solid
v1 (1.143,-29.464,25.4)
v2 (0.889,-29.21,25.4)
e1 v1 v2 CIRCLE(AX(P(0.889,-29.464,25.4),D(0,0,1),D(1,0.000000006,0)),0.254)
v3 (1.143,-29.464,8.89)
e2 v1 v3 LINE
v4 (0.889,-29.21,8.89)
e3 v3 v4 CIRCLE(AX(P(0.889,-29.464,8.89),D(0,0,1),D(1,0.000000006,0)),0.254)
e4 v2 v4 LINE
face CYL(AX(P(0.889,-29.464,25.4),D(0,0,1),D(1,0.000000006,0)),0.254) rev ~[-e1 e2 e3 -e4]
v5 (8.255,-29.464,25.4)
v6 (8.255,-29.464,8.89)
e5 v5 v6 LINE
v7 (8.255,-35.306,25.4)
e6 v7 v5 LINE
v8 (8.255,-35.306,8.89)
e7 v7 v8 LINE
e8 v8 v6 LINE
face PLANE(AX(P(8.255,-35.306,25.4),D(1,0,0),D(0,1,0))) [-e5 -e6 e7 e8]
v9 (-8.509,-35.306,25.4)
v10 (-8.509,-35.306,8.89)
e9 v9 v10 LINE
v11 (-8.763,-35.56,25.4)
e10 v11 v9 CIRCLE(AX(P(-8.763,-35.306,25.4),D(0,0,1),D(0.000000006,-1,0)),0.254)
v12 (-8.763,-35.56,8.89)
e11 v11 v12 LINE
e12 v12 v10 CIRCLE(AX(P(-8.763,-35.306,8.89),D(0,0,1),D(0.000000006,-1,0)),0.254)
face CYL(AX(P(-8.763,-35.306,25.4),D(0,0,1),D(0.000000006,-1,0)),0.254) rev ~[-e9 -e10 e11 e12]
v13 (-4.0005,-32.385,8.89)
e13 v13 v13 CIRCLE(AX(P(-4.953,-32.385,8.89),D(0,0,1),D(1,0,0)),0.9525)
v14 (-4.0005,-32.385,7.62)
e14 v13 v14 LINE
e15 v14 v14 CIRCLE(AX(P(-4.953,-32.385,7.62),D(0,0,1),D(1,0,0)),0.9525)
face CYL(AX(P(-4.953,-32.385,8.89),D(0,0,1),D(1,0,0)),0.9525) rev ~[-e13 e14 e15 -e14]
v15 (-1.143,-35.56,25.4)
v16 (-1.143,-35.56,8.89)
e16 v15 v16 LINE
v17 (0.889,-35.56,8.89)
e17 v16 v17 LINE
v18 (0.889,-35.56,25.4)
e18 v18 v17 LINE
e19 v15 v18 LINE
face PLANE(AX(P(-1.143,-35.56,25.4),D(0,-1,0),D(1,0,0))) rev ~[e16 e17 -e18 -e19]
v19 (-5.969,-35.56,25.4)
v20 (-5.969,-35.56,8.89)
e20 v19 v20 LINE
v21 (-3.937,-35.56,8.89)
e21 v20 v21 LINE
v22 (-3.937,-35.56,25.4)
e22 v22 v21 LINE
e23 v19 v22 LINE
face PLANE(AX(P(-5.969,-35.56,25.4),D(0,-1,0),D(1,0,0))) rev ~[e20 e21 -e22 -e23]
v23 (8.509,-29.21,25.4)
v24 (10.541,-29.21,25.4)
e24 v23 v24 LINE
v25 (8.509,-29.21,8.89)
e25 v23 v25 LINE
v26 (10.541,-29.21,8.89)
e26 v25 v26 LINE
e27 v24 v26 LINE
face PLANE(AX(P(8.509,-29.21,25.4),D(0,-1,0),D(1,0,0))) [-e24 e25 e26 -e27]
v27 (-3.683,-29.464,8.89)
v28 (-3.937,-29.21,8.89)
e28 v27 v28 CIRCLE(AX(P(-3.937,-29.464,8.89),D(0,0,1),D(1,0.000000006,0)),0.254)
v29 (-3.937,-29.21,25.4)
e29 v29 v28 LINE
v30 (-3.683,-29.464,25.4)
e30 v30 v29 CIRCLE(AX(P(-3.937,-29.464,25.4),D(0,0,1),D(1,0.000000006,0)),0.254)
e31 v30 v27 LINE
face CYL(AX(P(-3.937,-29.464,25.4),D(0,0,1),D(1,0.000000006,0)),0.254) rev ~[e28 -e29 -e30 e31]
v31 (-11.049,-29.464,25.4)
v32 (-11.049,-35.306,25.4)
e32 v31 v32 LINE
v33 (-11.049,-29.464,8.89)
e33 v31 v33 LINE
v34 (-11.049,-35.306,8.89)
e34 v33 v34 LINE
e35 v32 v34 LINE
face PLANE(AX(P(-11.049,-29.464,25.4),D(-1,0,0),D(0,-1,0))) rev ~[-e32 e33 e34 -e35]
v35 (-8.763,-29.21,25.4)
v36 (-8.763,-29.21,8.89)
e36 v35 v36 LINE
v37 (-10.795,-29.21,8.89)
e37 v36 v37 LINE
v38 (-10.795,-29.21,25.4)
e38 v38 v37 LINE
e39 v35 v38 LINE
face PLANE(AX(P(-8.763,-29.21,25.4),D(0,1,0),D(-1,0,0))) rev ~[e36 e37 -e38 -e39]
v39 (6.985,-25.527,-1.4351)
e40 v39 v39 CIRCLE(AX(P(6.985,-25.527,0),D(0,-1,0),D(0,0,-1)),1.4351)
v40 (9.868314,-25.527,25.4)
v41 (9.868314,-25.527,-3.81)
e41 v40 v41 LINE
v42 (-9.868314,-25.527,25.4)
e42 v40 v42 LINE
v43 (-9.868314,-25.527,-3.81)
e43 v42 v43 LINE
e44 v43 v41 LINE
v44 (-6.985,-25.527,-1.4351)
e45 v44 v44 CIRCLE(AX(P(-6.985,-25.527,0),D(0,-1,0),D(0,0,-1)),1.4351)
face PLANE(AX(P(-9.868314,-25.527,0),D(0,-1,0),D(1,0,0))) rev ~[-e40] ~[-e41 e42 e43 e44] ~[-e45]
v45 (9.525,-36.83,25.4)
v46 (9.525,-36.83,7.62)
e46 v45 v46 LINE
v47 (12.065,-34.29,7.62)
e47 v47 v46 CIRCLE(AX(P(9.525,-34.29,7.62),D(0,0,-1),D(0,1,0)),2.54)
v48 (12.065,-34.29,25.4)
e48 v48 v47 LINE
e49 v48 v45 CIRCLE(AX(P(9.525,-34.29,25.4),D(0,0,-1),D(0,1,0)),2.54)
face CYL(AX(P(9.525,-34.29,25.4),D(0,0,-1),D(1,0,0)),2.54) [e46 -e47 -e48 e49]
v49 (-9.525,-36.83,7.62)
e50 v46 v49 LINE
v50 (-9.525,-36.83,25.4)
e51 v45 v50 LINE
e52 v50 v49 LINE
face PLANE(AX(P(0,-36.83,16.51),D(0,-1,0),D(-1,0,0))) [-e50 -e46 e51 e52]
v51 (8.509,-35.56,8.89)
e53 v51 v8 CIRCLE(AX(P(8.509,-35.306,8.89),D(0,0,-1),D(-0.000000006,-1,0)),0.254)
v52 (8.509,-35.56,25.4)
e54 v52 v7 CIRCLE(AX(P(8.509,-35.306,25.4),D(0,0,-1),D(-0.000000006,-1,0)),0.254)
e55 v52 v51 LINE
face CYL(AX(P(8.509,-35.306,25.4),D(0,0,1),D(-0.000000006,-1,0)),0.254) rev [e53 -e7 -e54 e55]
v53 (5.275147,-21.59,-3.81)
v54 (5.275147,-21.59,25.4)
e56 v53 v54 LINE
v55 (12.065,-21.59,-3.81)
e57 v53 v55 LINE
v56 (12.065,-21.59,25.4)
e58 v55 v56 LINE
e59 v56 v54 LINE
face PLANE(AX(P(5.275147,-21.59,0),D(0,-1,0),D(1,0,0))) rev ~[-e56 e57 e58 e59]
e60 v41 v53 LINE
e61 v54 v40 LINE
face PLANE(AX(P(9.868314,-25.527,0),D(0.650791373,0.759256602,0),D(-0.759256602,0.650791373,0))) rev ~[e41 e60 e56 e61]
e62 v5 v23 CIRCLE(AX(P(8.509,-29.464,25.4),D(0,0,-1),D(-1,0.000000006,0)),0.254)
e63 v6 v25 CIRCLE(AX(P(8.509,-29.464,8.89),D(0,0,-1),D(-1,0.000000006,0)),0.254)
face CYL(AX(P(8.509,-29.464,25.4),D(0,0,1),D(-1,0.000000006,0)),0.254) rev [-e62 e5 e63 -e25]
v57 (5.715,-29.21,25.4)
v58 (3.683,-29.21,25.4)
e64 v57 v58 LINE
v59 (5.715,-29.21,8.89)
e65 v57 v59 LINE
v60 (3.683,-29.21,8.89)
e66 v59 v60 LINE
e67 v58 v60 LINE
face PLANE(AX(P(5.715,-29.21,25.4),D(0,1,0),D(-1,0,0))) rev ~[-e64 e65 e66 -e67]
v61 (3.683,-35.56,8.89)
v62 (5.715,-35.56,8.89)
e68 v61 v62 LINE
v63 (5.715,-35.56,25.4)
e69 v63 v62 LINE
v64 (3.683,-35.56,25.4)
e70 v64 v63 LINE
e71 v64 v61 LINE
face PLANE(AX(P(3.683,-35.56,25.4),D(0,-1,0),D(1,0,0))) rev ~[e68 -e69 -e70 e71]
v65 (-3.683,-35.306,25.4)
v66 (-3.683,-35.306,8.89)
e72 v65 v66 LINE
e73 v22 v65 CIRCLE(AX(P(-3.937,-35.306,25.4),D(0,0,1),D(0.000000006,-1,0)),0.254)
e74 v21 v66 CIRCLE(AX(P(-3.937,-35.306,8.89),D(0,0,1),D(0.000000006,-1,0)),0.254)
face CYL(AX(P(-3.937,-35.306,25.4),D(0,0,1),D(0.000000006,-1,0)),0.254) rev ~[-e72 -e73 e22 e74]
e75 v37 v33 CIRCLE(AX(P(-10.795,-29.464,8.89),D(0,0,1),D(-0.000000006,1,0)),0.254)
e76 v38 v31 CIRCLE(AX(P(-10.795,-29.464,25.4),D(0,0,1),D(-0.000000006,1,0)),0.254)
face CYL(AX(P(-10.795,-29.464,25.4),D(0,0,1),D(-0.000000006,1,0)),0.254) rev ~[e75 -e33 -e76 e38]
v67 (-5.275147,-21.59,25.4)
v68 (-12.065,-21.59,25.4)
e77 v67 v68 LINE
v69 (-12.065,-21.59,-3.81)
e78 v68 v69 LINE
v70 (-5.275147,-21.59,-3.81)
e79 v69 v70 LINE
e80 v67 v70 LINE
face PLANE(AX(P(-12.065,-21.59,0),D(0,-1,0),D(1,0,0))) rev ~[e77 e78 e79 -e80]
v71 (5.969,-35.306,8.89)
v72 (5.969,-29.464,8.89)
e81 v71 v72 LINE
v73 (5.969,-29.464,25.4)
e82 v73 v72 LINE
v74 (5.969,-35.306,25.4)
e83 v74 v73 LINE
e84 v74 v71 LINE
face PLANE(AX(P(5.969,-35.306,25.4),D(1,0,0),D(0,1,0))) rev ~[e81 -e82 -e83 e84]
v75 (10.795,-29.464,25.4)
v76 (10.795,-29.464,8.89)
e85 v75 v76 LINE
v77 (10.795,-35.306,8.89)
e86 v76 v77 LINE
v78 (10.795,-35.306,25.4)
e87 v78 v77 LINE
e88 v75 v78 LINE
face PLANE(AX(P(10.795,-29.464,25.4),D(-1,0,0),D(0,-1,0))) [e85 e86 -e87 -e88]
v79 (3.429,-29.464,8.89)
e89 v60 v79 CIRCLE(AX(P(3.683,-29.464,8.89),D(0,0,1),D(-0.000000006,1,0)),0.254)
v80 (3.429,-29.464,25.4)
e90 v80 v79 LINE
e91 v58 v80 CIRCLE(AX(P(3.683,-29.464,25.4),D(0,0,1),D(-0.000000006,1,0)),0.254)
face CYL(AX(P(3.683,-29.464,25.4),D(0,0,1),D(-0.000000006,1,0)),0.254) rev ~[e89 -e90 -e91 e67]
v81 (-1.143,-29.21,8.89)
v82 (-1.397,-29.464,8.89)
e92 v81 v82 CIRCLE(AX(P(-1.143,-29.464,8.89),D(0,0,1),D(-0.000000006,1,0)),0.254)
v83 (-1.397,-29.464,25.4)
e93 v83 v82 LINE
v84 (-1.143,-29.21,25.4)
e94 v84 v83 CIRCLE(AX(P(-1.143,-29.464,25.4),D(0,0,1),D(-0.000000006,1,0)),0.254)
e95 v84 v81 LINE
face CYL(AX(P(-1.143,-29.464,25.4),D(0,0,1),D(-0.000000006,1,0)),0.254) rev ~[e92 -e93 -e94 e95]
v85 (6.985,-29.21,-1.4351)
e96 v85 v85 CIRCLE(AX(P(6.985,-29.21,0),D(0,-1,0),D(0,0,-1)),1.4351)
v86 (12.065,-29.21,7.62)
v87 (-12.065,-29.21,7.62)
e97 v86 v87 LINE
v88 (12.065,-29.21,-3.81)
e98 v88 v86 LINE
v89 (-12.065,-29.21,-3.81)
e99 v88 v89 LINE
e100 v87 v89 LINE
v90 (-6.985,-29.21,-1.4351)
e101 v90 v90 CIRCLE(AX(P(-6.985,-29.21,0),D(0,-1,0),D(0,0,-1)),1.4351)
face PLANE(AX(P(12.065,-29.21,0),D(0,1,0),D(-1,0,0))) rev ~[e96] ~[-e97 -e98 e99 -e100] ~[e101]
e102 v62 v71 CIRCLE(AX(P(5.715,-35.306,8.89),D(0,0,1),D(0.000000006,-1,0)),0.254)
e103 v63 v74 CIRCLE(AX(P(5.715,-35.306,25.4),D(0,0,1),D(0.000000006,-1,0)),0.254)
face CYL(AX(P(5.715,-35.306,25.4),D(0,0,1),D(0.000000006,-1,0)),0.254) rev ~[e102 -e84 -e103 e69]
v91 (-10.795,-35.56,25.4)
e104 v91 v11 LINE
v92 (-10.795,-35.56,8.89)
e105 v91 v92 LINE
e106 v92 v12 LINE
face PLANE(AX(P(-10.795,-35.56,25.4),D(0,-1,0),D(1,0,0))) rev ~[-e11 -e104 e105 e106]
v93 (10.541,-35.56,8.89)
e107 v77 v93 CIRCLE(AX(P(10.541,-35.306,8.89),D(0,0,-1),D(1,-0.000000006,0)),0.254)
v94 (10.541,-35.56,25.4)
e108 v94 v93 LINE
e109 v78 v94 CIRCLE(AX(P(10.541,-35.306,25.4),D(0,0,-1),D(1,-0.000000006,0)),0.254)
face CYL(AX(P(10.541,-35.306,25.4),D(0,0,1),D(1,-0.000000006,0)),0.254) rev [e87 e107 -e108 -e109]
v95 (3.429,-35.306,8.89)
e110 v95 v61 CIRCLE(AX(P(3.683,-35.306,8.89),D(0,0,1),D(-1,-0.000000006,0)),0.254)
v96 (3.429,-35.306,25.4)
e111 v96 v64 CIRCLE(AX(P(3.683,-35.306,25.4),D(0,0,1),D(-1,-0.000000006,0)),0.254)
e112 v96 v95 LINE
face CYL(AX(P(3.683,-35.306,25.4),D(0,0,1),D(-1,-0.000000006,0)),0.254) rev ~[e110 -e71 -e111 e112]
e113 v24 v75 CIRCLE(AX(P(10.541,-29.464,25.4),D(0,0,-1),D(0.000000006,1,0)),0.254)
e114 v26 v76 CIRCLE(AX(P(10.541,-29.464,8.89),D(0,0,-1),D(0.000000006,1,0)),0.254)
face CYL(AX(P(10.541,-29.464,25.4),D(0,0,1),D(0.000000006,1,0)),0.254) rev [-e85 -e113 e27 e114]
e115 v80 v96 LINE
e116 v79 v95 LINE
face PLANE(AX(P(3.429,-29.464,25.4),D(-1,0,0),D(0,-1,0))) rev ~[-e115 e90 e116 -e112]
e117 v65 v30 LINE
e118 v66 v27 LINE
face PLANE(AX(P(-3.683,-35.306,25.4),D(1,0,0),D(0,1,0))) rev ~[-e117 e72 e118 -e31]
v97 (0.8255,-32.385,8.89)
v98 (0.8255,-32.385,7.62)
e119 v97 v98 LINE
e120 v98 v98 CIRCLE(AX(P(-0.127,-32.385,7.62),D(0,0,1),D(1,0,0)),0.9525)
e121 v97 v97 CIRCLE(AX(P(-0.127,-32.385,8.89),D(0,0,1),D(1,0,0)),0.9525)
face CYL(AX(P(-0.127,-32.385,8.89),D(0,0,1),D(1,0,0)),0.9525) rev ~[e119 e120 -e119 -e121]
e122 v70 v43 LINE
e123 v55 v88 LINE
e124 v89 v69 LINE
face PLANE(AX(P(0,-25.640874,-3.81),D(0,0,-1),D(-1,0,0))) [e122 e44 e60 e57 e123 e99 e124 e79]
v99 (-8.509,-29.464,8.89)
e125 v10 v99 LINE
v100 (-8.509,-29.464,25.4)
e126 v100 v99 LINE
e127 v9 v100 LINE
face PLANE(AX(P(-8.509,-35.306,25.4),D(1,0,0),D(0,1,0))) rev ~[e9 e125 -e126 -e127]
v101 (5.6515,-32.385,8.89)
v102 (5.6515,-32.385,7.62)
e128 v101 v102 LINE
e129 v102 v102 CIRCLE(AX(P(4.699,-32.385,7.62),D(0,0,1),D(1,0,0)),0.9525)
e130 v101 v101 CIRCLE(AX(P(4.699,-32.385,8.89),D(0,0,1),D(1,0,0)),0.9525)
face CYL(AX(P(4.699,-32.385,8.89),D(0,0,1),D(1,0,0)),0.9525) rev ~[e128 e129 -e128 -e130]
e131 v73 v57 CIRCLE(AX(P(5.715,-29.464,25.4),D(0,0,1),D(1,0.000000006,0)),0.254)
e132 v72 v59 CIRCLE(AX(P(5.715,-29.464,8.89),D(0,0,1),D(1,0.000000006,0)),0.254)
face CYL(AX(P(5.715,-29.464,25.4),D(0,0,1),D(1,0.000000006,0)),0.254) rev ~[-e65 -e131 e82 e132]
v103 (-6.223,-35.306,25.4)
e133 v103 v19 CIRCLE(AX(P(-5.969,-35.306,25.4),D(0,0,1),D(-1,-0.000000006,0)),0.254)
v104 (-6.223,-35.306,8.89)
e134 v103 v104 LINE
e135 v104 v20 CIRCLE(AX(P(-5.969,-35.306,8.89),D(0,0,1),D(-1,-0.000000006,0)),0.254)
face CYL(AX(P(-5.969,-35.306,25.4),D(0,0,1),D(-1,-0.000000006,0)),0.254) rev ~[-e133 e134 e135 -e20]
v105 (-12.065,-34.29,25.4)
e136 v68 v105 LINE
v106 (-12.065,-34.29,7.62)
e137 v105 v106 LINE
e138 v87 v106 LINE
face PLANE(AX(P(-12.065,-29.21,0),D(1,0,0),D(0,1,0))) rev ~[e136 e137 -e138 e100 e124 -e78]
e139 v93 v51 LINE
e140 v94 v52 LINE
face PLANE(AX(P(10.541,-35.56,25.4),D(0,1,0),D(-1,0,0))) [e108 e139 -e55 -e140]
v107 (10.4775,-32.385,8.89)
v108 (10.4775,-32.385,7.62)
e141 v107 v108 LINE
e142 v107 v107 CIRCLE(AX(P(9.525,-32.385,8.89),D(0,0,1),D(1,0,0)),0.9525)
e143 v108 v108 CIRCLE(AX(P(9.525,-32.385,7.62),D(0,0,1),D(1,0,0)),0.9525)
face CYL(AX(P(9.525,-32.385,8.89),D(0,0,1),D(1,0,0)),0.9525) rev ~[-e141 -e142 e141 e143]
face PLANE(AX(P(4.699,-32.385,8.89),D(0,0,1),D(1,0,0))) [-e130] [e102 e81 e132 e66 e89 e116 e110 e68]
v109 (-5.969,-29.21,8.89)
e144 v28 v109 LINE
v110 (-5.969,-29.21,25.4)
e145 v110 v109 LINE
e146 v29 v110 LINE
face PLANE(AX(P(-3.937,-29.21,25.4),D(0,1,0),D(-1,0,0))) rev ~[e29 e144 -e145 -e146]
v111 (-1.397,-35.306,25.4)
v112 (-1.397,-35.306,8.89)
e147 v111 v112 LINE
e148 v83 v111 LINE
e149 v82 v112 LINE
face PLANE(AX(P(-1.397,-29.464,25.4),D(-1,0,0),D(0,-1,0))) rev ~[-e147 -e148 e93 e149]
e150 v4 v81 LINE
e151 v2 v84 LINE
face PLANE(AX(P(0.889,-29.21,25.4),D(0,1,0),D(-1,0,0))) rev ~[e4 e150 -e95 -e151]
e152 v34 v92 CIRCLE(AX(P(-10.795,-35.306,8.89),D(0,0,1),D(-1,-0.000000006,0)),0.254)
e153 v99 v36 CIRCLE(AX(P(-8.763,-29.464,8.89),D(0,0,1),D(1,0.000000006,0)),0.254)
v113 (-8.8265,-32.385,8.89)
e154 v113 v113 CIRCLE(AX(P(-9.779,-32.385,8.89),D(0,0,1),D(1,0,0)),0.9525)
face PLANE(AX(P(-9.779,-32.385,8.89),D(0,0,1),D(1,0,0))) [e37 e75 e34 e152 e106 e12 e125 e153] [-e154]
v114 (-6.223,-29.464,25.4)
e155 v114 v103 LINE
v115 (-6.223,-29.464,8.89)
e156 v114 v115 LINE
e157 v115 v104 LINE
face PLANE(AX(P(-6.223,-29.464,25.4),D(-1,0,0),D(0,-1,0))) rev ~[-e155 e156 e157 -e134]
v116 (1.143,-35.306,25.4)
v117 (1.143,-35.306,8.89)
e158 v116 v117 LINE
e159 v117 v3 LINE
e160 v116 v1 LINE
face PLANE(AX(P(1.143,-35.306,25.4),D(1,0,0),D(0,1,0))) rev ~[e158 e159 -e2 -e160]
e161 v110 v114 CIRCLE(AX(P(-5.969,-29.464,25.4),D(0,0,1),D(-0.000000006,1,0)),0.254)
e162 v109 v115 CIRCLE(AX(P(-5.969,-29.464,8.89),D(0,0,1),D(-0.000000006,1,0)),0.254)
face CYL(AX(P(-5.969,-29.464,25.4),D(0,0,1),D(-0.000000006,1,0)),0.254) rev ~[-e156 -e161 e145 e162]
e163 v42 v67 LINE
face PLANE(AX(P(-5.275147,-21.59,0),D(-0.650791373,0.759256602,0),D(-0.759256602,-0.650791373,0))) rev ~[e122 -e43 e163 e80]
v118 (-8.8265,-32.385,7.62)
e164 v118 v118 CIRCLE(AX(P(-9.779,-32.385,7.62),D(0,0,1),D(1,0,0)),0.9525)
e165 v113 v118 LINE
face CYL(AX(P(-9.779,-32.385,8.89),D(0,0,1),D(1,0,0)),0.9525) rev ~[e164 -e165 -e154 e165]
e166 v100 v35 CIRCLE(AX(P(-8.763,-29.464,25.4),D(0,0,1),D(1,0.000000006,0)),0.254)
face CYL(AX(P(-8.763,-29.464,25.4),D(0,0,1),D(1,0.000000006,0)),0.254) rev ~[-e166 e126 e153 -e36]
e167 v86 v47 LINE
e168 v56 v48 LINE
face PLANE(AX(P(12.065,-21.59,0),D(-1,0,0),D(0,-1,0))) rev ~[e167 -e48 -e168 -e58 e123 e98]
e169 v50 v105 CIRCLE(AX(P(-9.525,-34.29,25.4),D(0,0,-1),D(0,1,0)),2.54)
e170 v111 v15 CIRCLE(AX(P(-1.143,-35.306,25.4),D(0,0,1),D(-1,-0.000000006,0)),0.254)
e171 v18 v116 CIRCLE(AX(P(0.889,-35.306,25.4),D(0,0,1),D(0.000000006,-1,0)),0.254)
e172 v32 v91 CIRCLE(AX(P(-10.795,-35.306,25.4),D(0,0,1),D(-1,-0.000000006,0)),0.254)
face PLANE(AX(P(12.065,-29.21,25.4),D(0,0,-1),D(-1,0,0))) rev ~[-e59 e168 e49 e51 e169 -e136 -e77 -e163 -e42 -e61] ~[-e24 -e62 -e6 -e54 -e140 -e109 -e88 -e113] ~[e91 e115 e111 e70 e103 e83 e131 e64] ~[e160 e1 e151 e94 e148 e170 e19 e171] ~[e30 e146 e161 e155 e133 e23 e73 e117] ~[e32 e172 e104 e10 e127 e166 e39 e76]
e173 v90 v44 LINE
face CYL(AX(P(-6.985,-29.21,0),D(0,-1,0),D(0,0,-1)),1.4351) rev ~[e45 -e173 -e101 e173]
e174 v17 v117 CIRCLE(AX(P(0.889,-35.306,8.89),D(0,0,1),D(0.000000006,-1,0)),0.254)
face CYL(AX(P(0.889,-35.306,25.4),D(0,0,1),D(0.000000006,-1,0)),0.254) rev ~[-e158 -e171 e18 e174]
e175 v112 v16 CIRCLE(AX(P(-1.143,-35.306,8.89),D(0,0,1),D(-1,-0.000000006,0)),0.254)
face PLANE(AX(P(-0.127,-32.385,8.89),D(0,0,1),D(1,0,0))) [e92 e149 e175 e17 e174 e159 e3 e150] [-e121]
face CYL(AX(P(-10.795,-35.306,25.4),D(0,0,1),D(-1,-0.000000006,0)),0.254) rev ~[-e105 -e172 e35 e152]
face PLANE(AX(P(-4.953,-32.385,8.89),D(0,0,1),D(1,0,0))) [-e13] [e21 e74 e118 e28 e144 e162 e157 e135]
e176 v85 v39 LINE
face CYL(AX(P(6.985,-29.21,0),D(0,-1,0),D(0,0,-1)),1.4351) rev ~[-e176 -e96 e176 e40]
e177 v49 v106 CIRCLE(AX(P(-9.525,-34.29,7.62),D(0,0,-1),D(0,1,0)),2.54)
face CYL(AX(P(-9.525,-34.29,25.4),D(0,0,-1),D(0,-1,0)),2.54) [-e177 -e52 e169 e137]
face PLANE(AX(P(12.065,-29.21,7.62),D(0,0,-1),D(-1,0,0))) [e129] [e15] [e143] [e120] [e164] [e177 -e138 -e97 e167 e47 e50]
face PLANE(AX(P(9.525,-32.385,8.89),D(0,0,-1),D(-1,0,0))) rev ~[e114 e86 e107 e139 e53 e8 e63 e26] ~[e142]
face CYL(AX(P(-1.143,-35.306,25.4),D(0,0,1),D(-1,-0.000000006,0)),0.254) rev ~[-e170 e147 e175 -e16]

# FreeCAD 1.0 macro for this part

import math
import FreeCAD as App
import Part
import Sketcher
Q = App.Units.Quantity


def edges_at(feature, points):
    """Names of the edges that pass closest to the given points."""
    edges = feature.Shape.Edges
    near = lambda p: min(range(len(edges)), key=lambda i: edges[i].distToShape(Part.Vertex(*p))[0])
    return sorted({f"Edge{near(p) + 1}" for p in points})

doc = App.newDocument("Part")
body = doc.addObject("PartDesign::Body", "Body")

# Sketch on XY plane
sketch1 = body.newObject("Sketcher::SketchObject", "Sketch")
sketch1.AttachmentSupport = (doc.getObject("XY_Plane"), [""])
sketch1.MapMode = "FlatFace"
sketch1.addGeometry(Part.LineSegment(App.Vector(5, -22, 0), App.Vector(10, -26, 0)), False)
sketch1.addGeometry(Part.LineSegment(App.Vector(10, -26, 0), App.Vector(-10, -26, 0)), False)
sketch1.addGeometry(Part.LineSegment(App.Vector(-10, -26, 0), App.Vector(-5, -22, 0)), False)
sketch1.addGeometry(Part.LineSegment(App.Vector(-5, -22, 0), App.Vector(-12, -22, 0)), False)
sketch1.addGeometry(Part.LineSegment(App.Vector(-12, -22, 0), App.Vector(-12, -29, 0)), False)
sketch1.addGeometry(Part.LineSegment(App.Vector(-12, -29, 0), App.Vector(12, -29, 0)), False)
sketch1.addGeometry(Part.LineSegment(App.Vector(12, -29, 0), App.Vector(12, -22, 0)), False)
sketch1.addGeometry(Part.LineSegment(App.Vector(12, -22, 0), App.Vector(5, -22, 0)), False)
sketch1.addConstraint(Sketcher.Constraint("Coincident", 0, 2, 1, 1))
sketch1.addConstraint(Sketcher.Constraint("Coincident", 1, 2, 2, 1))
sketch1.addConstraint(Sketcher.Constraint("Coincident", 2, 2, 3, 1))
sketch1.addConstraint(Sketcher.Constraint("Coincident", 3, 2, 4, 1))
sketch1.addConstraint(Sketcher.Constraint("Coincident", 4, 2, 5, 1))
sketch1.addConstraint(Sketcher.Constraint("Coincident", 5, 2, 6, 1))
sketch1.addConstraint(Sketcher.Constraint("Coincident", 6, 2, 7, 1))
sketch1.addConstraint(Sketcher.Constraint("Coincident", 7, 2, 0, 1))
sketch1.addConstraint(Sketcher.Constraint("Horizontal", 1))
sketch1.addConstraint(Sketcher.Constraint("Horizontal", 3))
sketch1.addConstraint(Sketcher.Constraint("Vertical", 4))
sketch1.addConstraint(Sketcher.Constraint("Horizontal", 5))
sketch1.addConstraint(Sketcher.Constraint("Vertical", 6))
sketch1.addConstraint(Sketcher.Constraint("Horizontal", 7))
sketch1.addConstraint(Sketcher.Constraint("Symmetric", 3, 2, 6, 2, -2))
sketch1.addConstraint(Sketcher.Constraint("Equal", 3, 7))
sketch1.addConstraint(Sketcher.Constraint("Equal", 0, 2))
sketch1.addConstraint(Sketcher.Constraint("DistanceY", 4, 2, 4, 1, Q("0.3 in")))
sketch1.addConstraint(Sketcher.Constraint("DistanceX", 5, 1, 5, 2, Q("0.95 in")))
sketch1.addConstraint(Sketcher.Constraint("DistanceY", 2, 2, -1, 1, Q("0.85 in")))
sketch1.addConstraint(Sketcher.Constraint("DistanceY", 0, 2, -1, 1, Q("1.005 in")))
sketch1.addConstraint(Sketcher.Constraint("DistanceX", 1, 2, 1, 1, Q("19.736627 mm")))
sketch1.addConstraint(Sketcher.Constraint("DistanceX", 3, 2, 3, 1, Q("6.789853 mm")))
pad1 = body.newObject("PartDesign::Pad", "Pad")
pad1.Profile = sketch1
pad1.Length = Q("1 in")

# Sketch on XZ plane
sketch2 = body.newObject("Sketcher::SketchObject", "Sketch001")
sketch2.AttachmentSupport = (doc.getObject("XZ_Plane"), [""])
sketch2.MapMode = "FlatFace"
sketch2.AttachmentOffset = App.Placement(App.Vector(0, 0, 1.15 * 25.4), App.Rotation())
sketch2.addGeometry(Part.LineSegment(App.Vector(12, 8, 0), App.Vector(12, 25, 0)), False)
sketch2.addGeometry(Part.LineSegment(App.Vector(12, 25, 0), App.Vector(-12, 25, 0)), False)
sketch2.addGeometry(Part.LineSegment(App.Vector(-12, 25, 0), App.Vector(-12, 8, 0)), False)
sketch2.addGeometry(Part.LineSegment(App.Vector(-12, 8, 0), App.Vector(12, 8, 0)), False)
sketch2.addConstraint(Sketcher.Constraint("Coincident", 0, 2, 1, 1))
sketch2.addConstraint(Sketcher.Constraint("Coincident", 1, 2, 2, 1))
sketch2.addConstraint(Sketcher.Constraint("Coincident", 2, 2, 3, 1))
sketch2.addConstraint(Sketcher.Constraint("Coincident", 3, 2, 0, 1))
sketch2.addConstraint(Sketcher.Constraint("Vertical", 0))
sketch2.addConstraint(Sketcher.Constraint("Horizontal", 1))
sketch2.addConstraint(Sketcher.Constraint("Vertical", 2))
sketch2.addConstraint(Sketcher.Constraint("Horizontal", 3))
sketch2.addConstraint(Sketcher.Constraint("DistanceY", 0, 1, 0, 2, Q("0.7 in")))
sketch2.addConstraint(Sketcher.Constraint("DistanceY", -1, 1, 0, 2, Q("1 in")))
sketch2.addConstraint(Sketcher.Constraint("DistanceX", 1, 2, 1, 1, Q("0.95 in")))
sketch2.addConstraint(Sketcher.Constraint("DistanceX", -1, 1, 0, 2, Q("0.475 in")))
pad2 = body.newObject("PartDesign::Pad", "Pad001")
pad2.Profile = sketch2
pad2.Length = Q("0.3 in")

# Sketch on XY plane
sketch3 = body.newObject("Sketcher::SketchObject", "Sketch002")
sketch3.AttachmentSupport = (doc.getObject("XY_Plane"), [""])
sketch3.MapMode = "FlatFace"
sketch3.AttachmentOffset = App.Placement(App.Vector(0, 0, 1 * 25.4), App.Rotation())
sketch3.addGeometry(Part.LineSegment(App.Vector(8.51, -35.56, 0), App.Vector(10.54, -35.56, 0)), False)
sketch3.addGeometry(Part.ArcOfCircle(Part.Circle(App.Vector(10.54, -35.31, 0), App.Vector(0, 0, 1), 0.25), math.radians(-90), math.radians(0)), False)
sketch3.addGeometry(Part.LineSegment(App.Vector(10.79, -35.31, 0), App.Vector(10.79, -29.46, 0)), False)
sketch3.addGeometry(Part.ArcOfCircle(Part.Circle(App.Vector(10.54, -29.46, 0), App.Vector(0, 0, 1), 0.25), math.radians(0), math.radians(90)), False)
sketch3.addGeometry(Part.LineSegment(App.Vector(10.54, -29.21, 0), App.Vector(8.51, -29.21, 0)), False)
sketch3.addGeometry(Part.ArcOfCircle(Part.Circle(App.Vector(8.51, -29.46, 0), App.Vector(0, 0, 1), 0.25), math.radians(90), math.radians(180)), False)
sketch3.addGeometry(Part.LineSegment(App.Vector(8.26, -29.46, 0), App.Vector(8.26, -35.31, 0)), False)
sketch3.addGeometry(Part.ArcOfCircle(Part.Circle(App.Vector(8.51, -35.31, 0), App.Vector(0, 0, 1), 0.25), math.radians(-180), math.radians(-90)), False)
sketch3.addGeometry(Part.LineSegment(App.Vector(5.97, -35.31, 0), App.Vector(5.97, -29.46, 0)), False)
sketch3.addGeometry(Part.ArcOfCircle(Part.Circle(App.Vector(5.71, -29.46, 0), App.Vector(0, 0, 1), 0.25), math.radians(0), math.radians(90)), False)
sketch3.addGeometry(Part.LineSegment(App.Vector(5.71, -29.21, 0), App.Vector(3.68, -29.21, 0)), False)
sketch3.addGeometry(Part.ArcOfCircle(Part.Circle(App.Vector(3.68, -29.46, 0), App.Vector(0, 0, 1), 0.25), math.radians(90), math.radians(180)), False)
sketch3.addGeometry(Part.LineSegment(App.Vector(3.43, -29.46, 0), App.Vector(3.43, -35.31, 0)), False)
sketch3.addGeometry(Part.ArcOfCircle(Part.Circle(App.Vector(3.68, -35.31, 0), App.Vector(0, 0, 1), 0.25), math.radians(-180), math.radians(-90)), False)
sketch3.addGeometry(Part.LineSegment(App.Vector(3.68, -35.56, 0), App.Vector(5.71, -35.56, 0)), False)
sketch3.addGeometry(Part.ArcOfCircle(Part.Circle(App.Vector(5.71, -35.31, 0), App.Vector(0, 0, 1), 0.25), math.radians(-90), math.radians(0)), False)
sketch3.addGeometry(Part.LineSegment(App.Vector(1.14, -35.31, 0), App.Vector(1.14, -29.46, 0)), False)
sketch3.addGeometry(Part.ArcOfCircle(Part.Circle(App.Vector(0.89, -29.46, 0), App.Vector(0, 0, 1), 0.25), math.radians(0), math.radians(90)), False)
sketch3.addGeometry(Part.LineSegment(App.Vector(0.89, -29.21, 0), App.Vector(-1.14, -29.21, 0)), False)
sketch3.addGeometry(Part.ArcOfCircle(Part.Circle(App.Vector(-1.14, -29.46, 0), App.Vector(0, 0, 1), 0.25), math.radians(90), math.radians(180)), False)
sketch3.addGeometry(Part.LineSegment(App.Vector(-1.4, -29.46, 0), App.Vector(-1.4, -35.31, 0)), False)
sketch3.addGeometry(Part.ArcOfCircle(Part.Circle(App.Vector(-1.14, -35.31, 0), App.Vector(0, 0, 1), 0.25), math.radians(-180), math.radians(-90)), False)
sketch3.addGeometry(Part.LineSegment(App.Vector(-1.14, -35.56, 0), App.Vector(0.89, -35.56, 0)), False)
sketch3.addGeometry(Part.ArcOfCircle(Part.Circle(App.Vector(0.89, -35.31, 0), App.Vector(0, 0, 1), 0.25), math.radians(-90), math.radians(0)), False)
sketch3.addGeometry(Part.LineSegment(App.Vector(-3.68, -35.31, 0), App.Vector(-3.68, -29.46, 0)), False)
sketch3.addGeometry(Part.ArcOfCircle(Part.Circle(App.Vector(-3.94, -29.46, 0), App.Vector(0, 0, 1), 0.25), math.radians(0), math.radians(90)), False)
sketch3.addGeometry(Part.LineSegment(App.Vector(-3.94, -29.21, 0), App.Vector(-5.97, -29.21, 0)), False)
sketch3.addGeometry(Part.ArcOfCircle(Part.Circle(App.Vector(-5.97, -29.46, 0), App.Vector(0, 0, 1), 0.25), math.radians(90), math.radians(180)), False)
sketch3.addGeometry(Part.LineSegment(App.Vector(-6.22, -29.46, 0), App.Vector(-6.22, -35.31, 0)), False)
sketch3.addGeometry(Part.ArcOfCircle(Part.Circle(App.Vector(-5.97, -35.31, 0), App.Vector(0, 0, 1), 0.25), math.radians(-180), math.radians(-90)), False)
sketch3.addGeometry(Part.LineSegment(App.Vector(-5.97, -35.56, 0), App.Vector(-3.94, -35.56, 0)), False)
sketch3.addGeometry(Part.ArcOfCircle(Part.Circle(App.Vector(-3.94, -35.31, 0), App.Vector(0, 0, 1), 0.25), math.radians(-90), math.radians(0)), False)
sketch3.addGeometry(Part.LineSegment(App.Vector(-8.51, -35.31, 0), App.Vector(-8.51, -29.46, 0)), False)
sketch3.addGeometry(Part.ArcOfCircle(Part.Circle(App.Vector(-8.76, -29.46, 0), App.Vector(0, 0, 1), 0.25), math.radians(0), math.radians(90)), False)
sketch3.addGeometry(Part.LineSegment(App.Vector(-8.76, -29.21, 0), App.Vector(-10.79, -29.21, 0)), False)
sketch3.addGeometry(Part.ArcOfCircle(Part.Circle(App.Vector(-10.79, -29.46, 0), App.Vector(0, 0, 1), 0.25), math.radians(90), math.radians(180)), False)
sketch3.addGeometry(Part.LineSegment(App.Vector(-11.05, -29.46, 0), App.Vector(-11.05, -35.31, 0)), False)
sketch3.addGeometry(Part.ArcOfCircle(Part.Circle(App.Vector(-10.79, -35.31, 0), App.Vector(0, 0, 1), 0.25), math.radians(-180), math.radians(-90)), False)
sketch3.addGeometry(Part.LineSegment(App.Vector(-10.79, -35.56, 0), App.Vector(-8.76, -35.56, 0)), False)
sketch3.addGeometry(Part.ArcOfCircle(Part.Circle(App.Vector(-8.76, -35.31, 0), App.Vector(0, 0, 1), 0.25), math.radians(-90), math.radians(0)), False)
sketch3.addConstraint(Sketcher.Constraint("Tangent", 0, 2, 1, 1))
sketch3.addConstraint(Sketcher.Constraint("Tangent", 1, 2, 2, 1))
sketch3.addConstraint(Sketcher.Constraint("Tangent", 2, 2, 3, 1))
sketch3.addConstraint(Sketcher.Constraint("Tangent", 3, 2, 4, 1))
sketch3.addConstraint(Sketcher.Constraint("Tangent", 4, 2, 5, 1))
sketch3.addConstraint(Sketcher.Constraint("Tangent", 5, 2, 6, 1))
sketch3.addConstraint(Sketcher.Constraint("Tangent", 6, 2, 7, 1))
sketch3.addConstraint(Sketcher.Constraint("Tangent", 7, 2, 0, 1))
sketch3.addConstraint(Sketcher.Constraint("Tangent", 8, 2, 9, 1))
sketch3.addConstraint(Sketcher.Constraint("Tangent", 9, 2, 10, 1))
sketch3.addConstraint(Sketcher.Constraint("Tangent", 10, 2, 11, 1))
sketch3.addConstraint(Sketcher.Constraint("Tangent", 11, 2, 12, 1))
sketch3.addConstraint(Sketcher.Constraint("Tangent", 12, 2, 13, 1))
sketch3.addConstraint(Sketcher.Constraint("Tangent", 13, 2, 14, 1))
sketch3.addConstraint(Sketcher.Constraint("Tangent", 14, 2, 15, 1))
sketch3.addConstraint(Sketcher.Constraint("Tangent", 15, 2, 8, 1))
sketch3.addConstraint(Sketcher.Constraint("Tangent", 16, 2, 17, 1))
sketch3.addConstraint(Sketcher.Constraint("Tangent", 17, 2, 18, 1))
sketch3.addConstraint(Sketcher.Constraint("Tangent", 18, 2, 19, 1))
sketch3.addConstraint(Sketcher.Constraint("Tangent", 19, 2, 20, 1))
sketch3.addConstraint(Sketcher.Constraint("Tangent", 20, 2, 21, 1))
sketch3.addConstraint(Sketcher.Constraint("Tangent", 21, 2, 22, 1))
sketch3.addConstraint(Sketcher.Constraint("Tangent", 22, 2, 23, 1))
sketch3.addConstraint(Sketcher.Constraint("Tangent", 23, 2, 16, 1))
sketch3.addConstraint(Sketcher.Constraint("Tangent", 24, 2, 25, 1))
sketch3.addConstraint(Sketcher.Constraint("Tangent", 25, 2, 26, 1))
sketch3.addConstraint(Sketcher.Constraint("Tangent", 26, 2, 27, 1))
sketch3.addConstraint(Sketcher.Constraint("Tangent", 27, 2, 28, 1))
sketch3.addConstraint(Sketcher.Constraint("Tangent", 28, 2, 29, 1))
sketch3.addConstraint(Sketcher.Constraint("Tangent", 29, 2, 30, 1))
sketch3.addConstraint(Sketcher.Constraint("Tangent", 30, 2, 31, 1))
sketch3.addConstraint(Sketcher.Constraint("Tangent", 31, 2, 24, 1))
sketch3.addConstraint(Sketcher.Constraint("Tangent", 32, 2, 33, 1))
sketch3.addConstraint(Sketcher.Constraint("Tangent", 33, 2, 34, 1))
sketch3.addConstraint(Sketcher.Constraint("Tangent", 34, 2, 35, 1))
sketch3.addConstraint(Sketcher.Constraint("Tangent", 35, 2, 36, 1))
sketch3.addConstraint(Sketcher.Constraint("Tangent", 36, 2, 37, 1))
sketch3.addConstraint(Sketcher.Constraint("Tangent", 37, 2, 38, 1))
sketch3.addConstraint(Sketcher.Constraint("Tangent", 38, 2, 39, 1))
sketch3.addConstraint(Sketcher.Constraint("Tangent", 39, 2, 32, 1))
sketch3.addConstraint(Sketcher.Constraint("Horizontal", 0))
sketch3.addConstraint(Sketcher.Constraint("Vertical", 2))
sketch3.addConstraint(Sketcher.Constraint("Horizontal", 4))
sketch3.addConstraint(Sketcher.Constraint("Vertical", 6))
sketch3.addConstraint(Sketcher.Constraint("Vertical", 8))
sketch3.addConstraint(Sketcher.Constraint("Horizontal", 10))
sketch3.addConstraint(Sketcher.Constraint("Vertical", 12))
sketch3.addConstraint(Sketcher.Constraint("Horizontal", 14))
sketch3.addConstraint(Sketcher.Constraint("Vertical", 16))
sketch3.addConstraint(Sketcher.Constraint("Horizontal", 18))
sketch3.addConstraint(Sketcher.Constraint("Vertical", 20))
sketch3.addConstraint(Sketcher.Constraint("Horizontal", 22))
sketch3.addConstraint(Sketcher.Constraint("Vertical", 24))
sketch3.addConstraint(Sketcher.Constraint("Horizontal", 26))
sketch3.addConstraint(Sketcher.Constraint("Vertical", 28))
sketch3.addConstraint(Sketcher.Constraint("Horizontal", 30))
sketch3.addConstraint(Sketcher.Constraint("Vertical", 32))
sketch3.addConstraint(Sketcher.Constraint("Horizontal", 34))
sketch3.addConstraint(Sketcher.Constraint("Vertical", 36))
sketch3.addConstraint(Sketcher.Constraint("Horizontal", 38))
sketch3.addConstraint(Sketcher.Constraint("Equal", 1, 3))
sketch3.addConstraint(Sketcher.Constraint("Equal", 3, 5))
sketch3.addConstraint(Sketcher.Constraint("Equal", 5, 7))
sketch3.addConstraint(Sketcher.Constraint("Equal", 7, 9))
sketch3.addConstraint(Sketcher.Constraint("Equal", 9, 11))
sketch3.addConstraint(Sketcher.Constraint("Equal", 11, 13))
sketch3.addConstraint(Sketcher.Constraint("Equal", 13, 15))
sketch3.addConstraint(Sketcher.Constraint("Equal", 15, 17))
sketch3.addConstraint(Sketcher.Constraint("Equal", 17, 19))
sketch3.addConstraint(Sketcher.Constraint("Equal", 19, 21))
sketch3.addConstraint(Sketcher.Constraint("Equal", 21, 23))
sketch3.addConstraint(Sketcher.Constraint("Equal", 23, 25))
sketch3.addConstraint(Sketcher.Constraint("Equal", 25, 27))
sketch3.addConstraint(Sketcher.Constraint("Equal", 27, 29))
sketch3.addConstraint(Sketcher.Constraint("Equal", 29, 31))
sketch3.addConstraint(Sketcher.Constraint("Equal", 31, 33))
sketch3.addConstraint(Sketcher.Constraint("Equal", 33, 35))
sketch3.addConstraint(Sketcher.Constraint("Equal", 35, 37))
sketch3.addConstraint(Sketcher.Constraint("Equal", 37, 39))
sketch3.addConstraint(Sketcher.Constraint("Horizontal", 5, 3, 9, 3))
sketch3.addConstraint(Sketcher.Constraint("Horizontal", 7, 3, 13, 3))
sketch3.addConstraint(Sketcher.Constraint("Horizontal", 11, 3, 17, 3))
sketch3.addConstraint(Sketcher.Constraint("Horizontal", 15, 3, 21, 3))
sketch3.addConstraint(Sketcher.Constraint("Horizontal", 19, 3, 25, 3))
sketch3.addConstraint(Sketcher.Constraint("Horizontal", 23, 3, 29, 3))
sketch3.addConstraint(Sketcher.Constraint("Horizontal", 27, 3, 33, 3))
sketch3.addConstraint(Sketcher.Constraint("Horizontal", 31, 3, 37, 3))
sketch3.addConstraint(Sketcher.Constraint("Equal", 4, 10))
sketch3.addConstraint(Sketcher.Constraint("Equal", 14, 18))
sketch3.addConstraint(Sketcher.Constraint("Equal", 22, 26))
sketch3.addConstraint(Sketcher.Constraint("Equal", 30, 34))
sketch3.addConstraint(Sketcher.Constraint("Radius", 1, Q("0.01 in")))
sketch3.addConstraint(Sketcher.Constraint("DistanceX", 0, 1, 0, 2, Q("0.08 in")))
sketch3.addConstraint(Sketcher.Constraint("DistanceY", 2, 1, 2, 2, Q("0.23 in")))
sketch3.addConstraint(Sketcher.Constraint("DistanceY", 0, 2, -1, 1, Q("1.4 in")))
sketch3.addConstraint(Sketcher.Constraint("DistanceX", 17, 3, 5, 3, Q("0.3 in")))
sketch3.addConstraint(Sketcher.Constraint("DistanceX", 25, 3, 11, 3, Q("0.3 in")))
sketch3.addConstraint(Sketcher.Constraint("DistanceX", 33, 3, 19, 3, Q("0.3 in")))
sketch3.addConstraint(Sketcher.Constraint("DistanceX", 15, 3, 1, 2, Q("0.2 in")))
sketch3.addConstraint(Sketcher.Constraint("DistanceX", -1, 1, 1, 3, Q("0.415 in")))
pocket1 = body.newObject("PartDesign::Pocket", "Pocket")
pocket1.Profile = sketch3
pocket1.Length = Q("0.65 in")

# Sketch on XY plane
sketch4 = body.newObject("Sketcher::SketchObject", "Sketch003")
sketch4.AttachmentSupport = (doc.getObject("XY_Plane"), [""])
sketch4.MapMode = "FlatFace"
sketch4.AttachmentOffset = App.Placement(App.Vector(0, 0, 0.35 * 25.4), App.Rotation())
sketch4.addGeometry(Part.Circle(App.Vector(9.5, -32.4, 0), App.Vector(0, 0, 1), 1), False)
sketch4.addGeometry(Part.Circle(App.Vector(4.7, -32.4, 0), App.Vector(0, 0, 1), 1), False)
sketch4.addGeometry(Part.Circle(App.Vector(-0.1, -32.4, 0), App.Vector(0, 0, 1), 1), False)
sketch4.addGeometry(Part.Circle(App.Vector(-5, -32.4, 0), App.Vector(0, 0, 1), 1), False)
sketch4.addGeometry(Part.Circle(App.Vector(-9.8, -32.4, 0), App.Vector(0, 0, 1), 1), False)
sketch4.addConstraint(Sketcher.Constraint("Equal", 0, 1))
sketch4.addConstraint(Sketcher.Constraint("Equal", 1, 2))
sketch4.addConstraint(Sketcher.Constraint("Equal", 2, 3))
sketch4.addConstraint(Sketcher.Constraint("Equal", 3, 4))
sketch4.addConstraint(Sketcher.Constraint("Horizontal", 0, 3, 1, 3))
sketch4.addConstraint(Sketcher.Constraint("Horizontal", 1, 3, 2, 3))
sketch4.addConstraint(Sketcher.Constraint("Horizontal", 2, 3, 3, 3))
sketch4.addConstraint(Sketcher.Constraint("Horizontal", 3, 3, 4, 3))
sketch4.addConstraint(Sketcher.Constraint("Diameter", 0, Q("0.075 in")))
sketch4.addConstraint(Sketcher.Constraint("DistanceX", 1, 3, 0, 3, Q("0.19 in")))
sketch4.addConstraint(Sketcher.Constraint("DistanceX", 2, 3, 1, 3, Q("0.19 in")))
sketch4.addConstraint(Sketcher.Constraint("DistanceX", 3, 3, 2, 3, Q("0.19 in")))
sketch4.addConstraint(Sketcher.Constraint("DistanceX", 4, 3, 3, 3, Q("0.19 in")))
sketch4.addConstraint(Sketcher.Constraint("DistanceX", -1, 1, 0, 3, Q("0.375 in")))
sketch4.addConstraint(Sketcher.Constraint("DistanceY", 0, 3, -1, 1, Q("1.275 in")))
pocket2 = body.newObject("PartDesign::Pocket", "Pocket001")
pocket2.Profile = sketch4
pocket2.Length = Q("0.05 in")
doc.recompute()

fillet = body.newObject("PartDesign::Fillet", "Fillet")
fillet.Base = (pocket2, edges_at(pocket2, [(12.065, -36.83, 16.51), (-12.065, -36.83, 16.51)]))
fillet.Radius = Q("0.1 in")

# Sketch on XY plane
sketch5 = body.newObject("Sketcher::SketchObject", "Sketch004")
sketch5.AttachmentSupport = (doc.getObject("XY_Plane"), [""])
sketch5.MapMode = "FlatFace"
sketch5.addGeometry(Part.LineSegment(App.Vector(12, -29, 0), App.Vector(-12, -29, 0)), False)
sketch5.addGeometry(Part.LineSegment(App.Vector(-12, -29, 0), App.Vector(-12, -22, 0)), False)
sketch5.addGeometry(Part.LineSegment(App.Vector(-12, -22, 0), App.Vector(-5, -22, 0)), False)
sketch5.addGeometry(Part.LineSegment(App.Vector(-5, -22, 0), App.Vector(-10, -26, 0)), False)
sketch5.addGeometry(Part.LineSegment(App.Vector(-10, -26, 0), App.Vector(10, -26, 0)), False)
sketch5.addGeometry(Part.LineSegment(App.Vector(10, -26, 0), App.Vector(5, -22, 0)), False)
sketch5.addGeometry(Part.LineSegment(App.Vector(5, -22, 0), App.Vector(12, -22, 0)), False)
sketch5.addGeometry(Part.LineSegment(App.Vector(12, -22, 0), App.Vector(12, -29, 0)), False)
sketch5.addConstraint(Sketcher.Constraint("Coincident", 0, 2, 1, 1))
sketch5.addConstraint(Sketcher.Constraint("Coincident", 1, 2, 2, 1))
sketch5.addConstraint(Sketcher.Constraint("Coincident", 2, 2, 3, 1))
sketch5.addConstraint(Sketcher.Constraint("Coincident", 3, 2, 4, 1))
sketch5.addConstraint(Sketcher.Constraint("Coincident", 4, 2, 5, 1))
sketch5.addConstraint(Sketcher.Constraint("Coincident", 5, 2, 6, 1))
sketch5.addConstraint(Sketcher.Constraint("Coincident", 6, 2, 7, 1))
sketch5.addConstraint(Sketcher.Constraint("Coincident", 7, 2, 0, 1))
sketch5.addConstraint(Sketcher.Constraint("Horizontal", 0))
sketch5.addConstraint(Sketcher.Constraint("Vertical", 1))
sketch5.addConstraint(Sketcher.Constraint("Horizontal", 2))
sketch5.addConstraint(Sketcher.Constraint("Horizontal", 4))
sketch5.addConstraint(Sketcher.Constraint("Horizontal", 6))
sketch5.addConstraint(Sketcher.Constraint("Vertical", 7))
sketch5.addConstraint(Sketcher.Constraint("Symmetric", 2, 2, 5, 2, -2))
sketch5.addConstraint(Sketcher.Constraint("Equal", 2, 6))
sketch5.addConstraint(Sketcher.Constraint("Equal", 3, 5))
sketch5.addConstraint(Sketcher.Constraint("DistanceY", 1, 1, 1, 2, Q("0.3 in")))
sketch5.addConstraint(Sketcher.Constraint("DistanceX", 0, 2, 0, 1, Q("0.95 in")))
sketch5.addConstraint(Sketcher.Constraint("DistanceY", 0, 2, -1, 1, Q("1.15 in")))
sketch5.addConstraint(Sketcher.Constraint("DistanceY", 3, 2, -1, 1, Q("1.005 in")))
sketch5.addConstraint(Sketcher.Constraint("DistanceX", 2, 1, 2, 2, Q("6.789853 mm")))
sketch5.addConstraint(Sketcher.Constraint("DistanceX", 4, 1, 4, 2, Q("19.736627 mm")))
pad3 = body.newObject("PartDesign::Pad", "Pad002")
pad3.Profile = sketch5
pad3.Length = Q("0.15 in")
pad3.Reversed = True

# Sketch on XZ plane
sketch6 = body.newObject("Sketcher::SketchObject", "Sketch005")
sketch6.AttachmentSupport = (doc.getObject("XZ_Plane"), [""])
sketch6.MapMode = "FlatFace"
sketch6.AttachmentOffset = App.Placement(App.Vector(0, 0, 1.15 * 25.4), App.Rotation())
sketch6.addGeometry(Part.Circle(App.Vector(7, 0, 0), App.Vector(0, 0, 1), 1.4), False)
sketch6.addGeometry(Part.Circle(App.Vector(-7, 0, 0), App.Vector(0, 0, 1), 1.4), False)
sketch6.addConstraint(Sketcher.Constraint("Equal", 0, 1))
sketch6.addConstraint(Sketcher.Constraint("Symmetric", 0, 3, 1, 3, -1, 1))
sketch6.addConstraint(Sketcher.Constraint("PointOnObject", 0, 3, -1))
sketch6.addConstraint(Sketcher.Constraint("Diameter", 0, Q("0.113 in")))
sketch6.addConstraint(Sketcher.Constraint("DistanceX", 1, 3, 0, 3, Q("0.55 in")))
pocket3 = body.newObject("PartDesign::Pocket", "Pocket002")
pocket3.Profile = sketch6
pocket3.Length = Q("0.145 in")

doc.recompute()
